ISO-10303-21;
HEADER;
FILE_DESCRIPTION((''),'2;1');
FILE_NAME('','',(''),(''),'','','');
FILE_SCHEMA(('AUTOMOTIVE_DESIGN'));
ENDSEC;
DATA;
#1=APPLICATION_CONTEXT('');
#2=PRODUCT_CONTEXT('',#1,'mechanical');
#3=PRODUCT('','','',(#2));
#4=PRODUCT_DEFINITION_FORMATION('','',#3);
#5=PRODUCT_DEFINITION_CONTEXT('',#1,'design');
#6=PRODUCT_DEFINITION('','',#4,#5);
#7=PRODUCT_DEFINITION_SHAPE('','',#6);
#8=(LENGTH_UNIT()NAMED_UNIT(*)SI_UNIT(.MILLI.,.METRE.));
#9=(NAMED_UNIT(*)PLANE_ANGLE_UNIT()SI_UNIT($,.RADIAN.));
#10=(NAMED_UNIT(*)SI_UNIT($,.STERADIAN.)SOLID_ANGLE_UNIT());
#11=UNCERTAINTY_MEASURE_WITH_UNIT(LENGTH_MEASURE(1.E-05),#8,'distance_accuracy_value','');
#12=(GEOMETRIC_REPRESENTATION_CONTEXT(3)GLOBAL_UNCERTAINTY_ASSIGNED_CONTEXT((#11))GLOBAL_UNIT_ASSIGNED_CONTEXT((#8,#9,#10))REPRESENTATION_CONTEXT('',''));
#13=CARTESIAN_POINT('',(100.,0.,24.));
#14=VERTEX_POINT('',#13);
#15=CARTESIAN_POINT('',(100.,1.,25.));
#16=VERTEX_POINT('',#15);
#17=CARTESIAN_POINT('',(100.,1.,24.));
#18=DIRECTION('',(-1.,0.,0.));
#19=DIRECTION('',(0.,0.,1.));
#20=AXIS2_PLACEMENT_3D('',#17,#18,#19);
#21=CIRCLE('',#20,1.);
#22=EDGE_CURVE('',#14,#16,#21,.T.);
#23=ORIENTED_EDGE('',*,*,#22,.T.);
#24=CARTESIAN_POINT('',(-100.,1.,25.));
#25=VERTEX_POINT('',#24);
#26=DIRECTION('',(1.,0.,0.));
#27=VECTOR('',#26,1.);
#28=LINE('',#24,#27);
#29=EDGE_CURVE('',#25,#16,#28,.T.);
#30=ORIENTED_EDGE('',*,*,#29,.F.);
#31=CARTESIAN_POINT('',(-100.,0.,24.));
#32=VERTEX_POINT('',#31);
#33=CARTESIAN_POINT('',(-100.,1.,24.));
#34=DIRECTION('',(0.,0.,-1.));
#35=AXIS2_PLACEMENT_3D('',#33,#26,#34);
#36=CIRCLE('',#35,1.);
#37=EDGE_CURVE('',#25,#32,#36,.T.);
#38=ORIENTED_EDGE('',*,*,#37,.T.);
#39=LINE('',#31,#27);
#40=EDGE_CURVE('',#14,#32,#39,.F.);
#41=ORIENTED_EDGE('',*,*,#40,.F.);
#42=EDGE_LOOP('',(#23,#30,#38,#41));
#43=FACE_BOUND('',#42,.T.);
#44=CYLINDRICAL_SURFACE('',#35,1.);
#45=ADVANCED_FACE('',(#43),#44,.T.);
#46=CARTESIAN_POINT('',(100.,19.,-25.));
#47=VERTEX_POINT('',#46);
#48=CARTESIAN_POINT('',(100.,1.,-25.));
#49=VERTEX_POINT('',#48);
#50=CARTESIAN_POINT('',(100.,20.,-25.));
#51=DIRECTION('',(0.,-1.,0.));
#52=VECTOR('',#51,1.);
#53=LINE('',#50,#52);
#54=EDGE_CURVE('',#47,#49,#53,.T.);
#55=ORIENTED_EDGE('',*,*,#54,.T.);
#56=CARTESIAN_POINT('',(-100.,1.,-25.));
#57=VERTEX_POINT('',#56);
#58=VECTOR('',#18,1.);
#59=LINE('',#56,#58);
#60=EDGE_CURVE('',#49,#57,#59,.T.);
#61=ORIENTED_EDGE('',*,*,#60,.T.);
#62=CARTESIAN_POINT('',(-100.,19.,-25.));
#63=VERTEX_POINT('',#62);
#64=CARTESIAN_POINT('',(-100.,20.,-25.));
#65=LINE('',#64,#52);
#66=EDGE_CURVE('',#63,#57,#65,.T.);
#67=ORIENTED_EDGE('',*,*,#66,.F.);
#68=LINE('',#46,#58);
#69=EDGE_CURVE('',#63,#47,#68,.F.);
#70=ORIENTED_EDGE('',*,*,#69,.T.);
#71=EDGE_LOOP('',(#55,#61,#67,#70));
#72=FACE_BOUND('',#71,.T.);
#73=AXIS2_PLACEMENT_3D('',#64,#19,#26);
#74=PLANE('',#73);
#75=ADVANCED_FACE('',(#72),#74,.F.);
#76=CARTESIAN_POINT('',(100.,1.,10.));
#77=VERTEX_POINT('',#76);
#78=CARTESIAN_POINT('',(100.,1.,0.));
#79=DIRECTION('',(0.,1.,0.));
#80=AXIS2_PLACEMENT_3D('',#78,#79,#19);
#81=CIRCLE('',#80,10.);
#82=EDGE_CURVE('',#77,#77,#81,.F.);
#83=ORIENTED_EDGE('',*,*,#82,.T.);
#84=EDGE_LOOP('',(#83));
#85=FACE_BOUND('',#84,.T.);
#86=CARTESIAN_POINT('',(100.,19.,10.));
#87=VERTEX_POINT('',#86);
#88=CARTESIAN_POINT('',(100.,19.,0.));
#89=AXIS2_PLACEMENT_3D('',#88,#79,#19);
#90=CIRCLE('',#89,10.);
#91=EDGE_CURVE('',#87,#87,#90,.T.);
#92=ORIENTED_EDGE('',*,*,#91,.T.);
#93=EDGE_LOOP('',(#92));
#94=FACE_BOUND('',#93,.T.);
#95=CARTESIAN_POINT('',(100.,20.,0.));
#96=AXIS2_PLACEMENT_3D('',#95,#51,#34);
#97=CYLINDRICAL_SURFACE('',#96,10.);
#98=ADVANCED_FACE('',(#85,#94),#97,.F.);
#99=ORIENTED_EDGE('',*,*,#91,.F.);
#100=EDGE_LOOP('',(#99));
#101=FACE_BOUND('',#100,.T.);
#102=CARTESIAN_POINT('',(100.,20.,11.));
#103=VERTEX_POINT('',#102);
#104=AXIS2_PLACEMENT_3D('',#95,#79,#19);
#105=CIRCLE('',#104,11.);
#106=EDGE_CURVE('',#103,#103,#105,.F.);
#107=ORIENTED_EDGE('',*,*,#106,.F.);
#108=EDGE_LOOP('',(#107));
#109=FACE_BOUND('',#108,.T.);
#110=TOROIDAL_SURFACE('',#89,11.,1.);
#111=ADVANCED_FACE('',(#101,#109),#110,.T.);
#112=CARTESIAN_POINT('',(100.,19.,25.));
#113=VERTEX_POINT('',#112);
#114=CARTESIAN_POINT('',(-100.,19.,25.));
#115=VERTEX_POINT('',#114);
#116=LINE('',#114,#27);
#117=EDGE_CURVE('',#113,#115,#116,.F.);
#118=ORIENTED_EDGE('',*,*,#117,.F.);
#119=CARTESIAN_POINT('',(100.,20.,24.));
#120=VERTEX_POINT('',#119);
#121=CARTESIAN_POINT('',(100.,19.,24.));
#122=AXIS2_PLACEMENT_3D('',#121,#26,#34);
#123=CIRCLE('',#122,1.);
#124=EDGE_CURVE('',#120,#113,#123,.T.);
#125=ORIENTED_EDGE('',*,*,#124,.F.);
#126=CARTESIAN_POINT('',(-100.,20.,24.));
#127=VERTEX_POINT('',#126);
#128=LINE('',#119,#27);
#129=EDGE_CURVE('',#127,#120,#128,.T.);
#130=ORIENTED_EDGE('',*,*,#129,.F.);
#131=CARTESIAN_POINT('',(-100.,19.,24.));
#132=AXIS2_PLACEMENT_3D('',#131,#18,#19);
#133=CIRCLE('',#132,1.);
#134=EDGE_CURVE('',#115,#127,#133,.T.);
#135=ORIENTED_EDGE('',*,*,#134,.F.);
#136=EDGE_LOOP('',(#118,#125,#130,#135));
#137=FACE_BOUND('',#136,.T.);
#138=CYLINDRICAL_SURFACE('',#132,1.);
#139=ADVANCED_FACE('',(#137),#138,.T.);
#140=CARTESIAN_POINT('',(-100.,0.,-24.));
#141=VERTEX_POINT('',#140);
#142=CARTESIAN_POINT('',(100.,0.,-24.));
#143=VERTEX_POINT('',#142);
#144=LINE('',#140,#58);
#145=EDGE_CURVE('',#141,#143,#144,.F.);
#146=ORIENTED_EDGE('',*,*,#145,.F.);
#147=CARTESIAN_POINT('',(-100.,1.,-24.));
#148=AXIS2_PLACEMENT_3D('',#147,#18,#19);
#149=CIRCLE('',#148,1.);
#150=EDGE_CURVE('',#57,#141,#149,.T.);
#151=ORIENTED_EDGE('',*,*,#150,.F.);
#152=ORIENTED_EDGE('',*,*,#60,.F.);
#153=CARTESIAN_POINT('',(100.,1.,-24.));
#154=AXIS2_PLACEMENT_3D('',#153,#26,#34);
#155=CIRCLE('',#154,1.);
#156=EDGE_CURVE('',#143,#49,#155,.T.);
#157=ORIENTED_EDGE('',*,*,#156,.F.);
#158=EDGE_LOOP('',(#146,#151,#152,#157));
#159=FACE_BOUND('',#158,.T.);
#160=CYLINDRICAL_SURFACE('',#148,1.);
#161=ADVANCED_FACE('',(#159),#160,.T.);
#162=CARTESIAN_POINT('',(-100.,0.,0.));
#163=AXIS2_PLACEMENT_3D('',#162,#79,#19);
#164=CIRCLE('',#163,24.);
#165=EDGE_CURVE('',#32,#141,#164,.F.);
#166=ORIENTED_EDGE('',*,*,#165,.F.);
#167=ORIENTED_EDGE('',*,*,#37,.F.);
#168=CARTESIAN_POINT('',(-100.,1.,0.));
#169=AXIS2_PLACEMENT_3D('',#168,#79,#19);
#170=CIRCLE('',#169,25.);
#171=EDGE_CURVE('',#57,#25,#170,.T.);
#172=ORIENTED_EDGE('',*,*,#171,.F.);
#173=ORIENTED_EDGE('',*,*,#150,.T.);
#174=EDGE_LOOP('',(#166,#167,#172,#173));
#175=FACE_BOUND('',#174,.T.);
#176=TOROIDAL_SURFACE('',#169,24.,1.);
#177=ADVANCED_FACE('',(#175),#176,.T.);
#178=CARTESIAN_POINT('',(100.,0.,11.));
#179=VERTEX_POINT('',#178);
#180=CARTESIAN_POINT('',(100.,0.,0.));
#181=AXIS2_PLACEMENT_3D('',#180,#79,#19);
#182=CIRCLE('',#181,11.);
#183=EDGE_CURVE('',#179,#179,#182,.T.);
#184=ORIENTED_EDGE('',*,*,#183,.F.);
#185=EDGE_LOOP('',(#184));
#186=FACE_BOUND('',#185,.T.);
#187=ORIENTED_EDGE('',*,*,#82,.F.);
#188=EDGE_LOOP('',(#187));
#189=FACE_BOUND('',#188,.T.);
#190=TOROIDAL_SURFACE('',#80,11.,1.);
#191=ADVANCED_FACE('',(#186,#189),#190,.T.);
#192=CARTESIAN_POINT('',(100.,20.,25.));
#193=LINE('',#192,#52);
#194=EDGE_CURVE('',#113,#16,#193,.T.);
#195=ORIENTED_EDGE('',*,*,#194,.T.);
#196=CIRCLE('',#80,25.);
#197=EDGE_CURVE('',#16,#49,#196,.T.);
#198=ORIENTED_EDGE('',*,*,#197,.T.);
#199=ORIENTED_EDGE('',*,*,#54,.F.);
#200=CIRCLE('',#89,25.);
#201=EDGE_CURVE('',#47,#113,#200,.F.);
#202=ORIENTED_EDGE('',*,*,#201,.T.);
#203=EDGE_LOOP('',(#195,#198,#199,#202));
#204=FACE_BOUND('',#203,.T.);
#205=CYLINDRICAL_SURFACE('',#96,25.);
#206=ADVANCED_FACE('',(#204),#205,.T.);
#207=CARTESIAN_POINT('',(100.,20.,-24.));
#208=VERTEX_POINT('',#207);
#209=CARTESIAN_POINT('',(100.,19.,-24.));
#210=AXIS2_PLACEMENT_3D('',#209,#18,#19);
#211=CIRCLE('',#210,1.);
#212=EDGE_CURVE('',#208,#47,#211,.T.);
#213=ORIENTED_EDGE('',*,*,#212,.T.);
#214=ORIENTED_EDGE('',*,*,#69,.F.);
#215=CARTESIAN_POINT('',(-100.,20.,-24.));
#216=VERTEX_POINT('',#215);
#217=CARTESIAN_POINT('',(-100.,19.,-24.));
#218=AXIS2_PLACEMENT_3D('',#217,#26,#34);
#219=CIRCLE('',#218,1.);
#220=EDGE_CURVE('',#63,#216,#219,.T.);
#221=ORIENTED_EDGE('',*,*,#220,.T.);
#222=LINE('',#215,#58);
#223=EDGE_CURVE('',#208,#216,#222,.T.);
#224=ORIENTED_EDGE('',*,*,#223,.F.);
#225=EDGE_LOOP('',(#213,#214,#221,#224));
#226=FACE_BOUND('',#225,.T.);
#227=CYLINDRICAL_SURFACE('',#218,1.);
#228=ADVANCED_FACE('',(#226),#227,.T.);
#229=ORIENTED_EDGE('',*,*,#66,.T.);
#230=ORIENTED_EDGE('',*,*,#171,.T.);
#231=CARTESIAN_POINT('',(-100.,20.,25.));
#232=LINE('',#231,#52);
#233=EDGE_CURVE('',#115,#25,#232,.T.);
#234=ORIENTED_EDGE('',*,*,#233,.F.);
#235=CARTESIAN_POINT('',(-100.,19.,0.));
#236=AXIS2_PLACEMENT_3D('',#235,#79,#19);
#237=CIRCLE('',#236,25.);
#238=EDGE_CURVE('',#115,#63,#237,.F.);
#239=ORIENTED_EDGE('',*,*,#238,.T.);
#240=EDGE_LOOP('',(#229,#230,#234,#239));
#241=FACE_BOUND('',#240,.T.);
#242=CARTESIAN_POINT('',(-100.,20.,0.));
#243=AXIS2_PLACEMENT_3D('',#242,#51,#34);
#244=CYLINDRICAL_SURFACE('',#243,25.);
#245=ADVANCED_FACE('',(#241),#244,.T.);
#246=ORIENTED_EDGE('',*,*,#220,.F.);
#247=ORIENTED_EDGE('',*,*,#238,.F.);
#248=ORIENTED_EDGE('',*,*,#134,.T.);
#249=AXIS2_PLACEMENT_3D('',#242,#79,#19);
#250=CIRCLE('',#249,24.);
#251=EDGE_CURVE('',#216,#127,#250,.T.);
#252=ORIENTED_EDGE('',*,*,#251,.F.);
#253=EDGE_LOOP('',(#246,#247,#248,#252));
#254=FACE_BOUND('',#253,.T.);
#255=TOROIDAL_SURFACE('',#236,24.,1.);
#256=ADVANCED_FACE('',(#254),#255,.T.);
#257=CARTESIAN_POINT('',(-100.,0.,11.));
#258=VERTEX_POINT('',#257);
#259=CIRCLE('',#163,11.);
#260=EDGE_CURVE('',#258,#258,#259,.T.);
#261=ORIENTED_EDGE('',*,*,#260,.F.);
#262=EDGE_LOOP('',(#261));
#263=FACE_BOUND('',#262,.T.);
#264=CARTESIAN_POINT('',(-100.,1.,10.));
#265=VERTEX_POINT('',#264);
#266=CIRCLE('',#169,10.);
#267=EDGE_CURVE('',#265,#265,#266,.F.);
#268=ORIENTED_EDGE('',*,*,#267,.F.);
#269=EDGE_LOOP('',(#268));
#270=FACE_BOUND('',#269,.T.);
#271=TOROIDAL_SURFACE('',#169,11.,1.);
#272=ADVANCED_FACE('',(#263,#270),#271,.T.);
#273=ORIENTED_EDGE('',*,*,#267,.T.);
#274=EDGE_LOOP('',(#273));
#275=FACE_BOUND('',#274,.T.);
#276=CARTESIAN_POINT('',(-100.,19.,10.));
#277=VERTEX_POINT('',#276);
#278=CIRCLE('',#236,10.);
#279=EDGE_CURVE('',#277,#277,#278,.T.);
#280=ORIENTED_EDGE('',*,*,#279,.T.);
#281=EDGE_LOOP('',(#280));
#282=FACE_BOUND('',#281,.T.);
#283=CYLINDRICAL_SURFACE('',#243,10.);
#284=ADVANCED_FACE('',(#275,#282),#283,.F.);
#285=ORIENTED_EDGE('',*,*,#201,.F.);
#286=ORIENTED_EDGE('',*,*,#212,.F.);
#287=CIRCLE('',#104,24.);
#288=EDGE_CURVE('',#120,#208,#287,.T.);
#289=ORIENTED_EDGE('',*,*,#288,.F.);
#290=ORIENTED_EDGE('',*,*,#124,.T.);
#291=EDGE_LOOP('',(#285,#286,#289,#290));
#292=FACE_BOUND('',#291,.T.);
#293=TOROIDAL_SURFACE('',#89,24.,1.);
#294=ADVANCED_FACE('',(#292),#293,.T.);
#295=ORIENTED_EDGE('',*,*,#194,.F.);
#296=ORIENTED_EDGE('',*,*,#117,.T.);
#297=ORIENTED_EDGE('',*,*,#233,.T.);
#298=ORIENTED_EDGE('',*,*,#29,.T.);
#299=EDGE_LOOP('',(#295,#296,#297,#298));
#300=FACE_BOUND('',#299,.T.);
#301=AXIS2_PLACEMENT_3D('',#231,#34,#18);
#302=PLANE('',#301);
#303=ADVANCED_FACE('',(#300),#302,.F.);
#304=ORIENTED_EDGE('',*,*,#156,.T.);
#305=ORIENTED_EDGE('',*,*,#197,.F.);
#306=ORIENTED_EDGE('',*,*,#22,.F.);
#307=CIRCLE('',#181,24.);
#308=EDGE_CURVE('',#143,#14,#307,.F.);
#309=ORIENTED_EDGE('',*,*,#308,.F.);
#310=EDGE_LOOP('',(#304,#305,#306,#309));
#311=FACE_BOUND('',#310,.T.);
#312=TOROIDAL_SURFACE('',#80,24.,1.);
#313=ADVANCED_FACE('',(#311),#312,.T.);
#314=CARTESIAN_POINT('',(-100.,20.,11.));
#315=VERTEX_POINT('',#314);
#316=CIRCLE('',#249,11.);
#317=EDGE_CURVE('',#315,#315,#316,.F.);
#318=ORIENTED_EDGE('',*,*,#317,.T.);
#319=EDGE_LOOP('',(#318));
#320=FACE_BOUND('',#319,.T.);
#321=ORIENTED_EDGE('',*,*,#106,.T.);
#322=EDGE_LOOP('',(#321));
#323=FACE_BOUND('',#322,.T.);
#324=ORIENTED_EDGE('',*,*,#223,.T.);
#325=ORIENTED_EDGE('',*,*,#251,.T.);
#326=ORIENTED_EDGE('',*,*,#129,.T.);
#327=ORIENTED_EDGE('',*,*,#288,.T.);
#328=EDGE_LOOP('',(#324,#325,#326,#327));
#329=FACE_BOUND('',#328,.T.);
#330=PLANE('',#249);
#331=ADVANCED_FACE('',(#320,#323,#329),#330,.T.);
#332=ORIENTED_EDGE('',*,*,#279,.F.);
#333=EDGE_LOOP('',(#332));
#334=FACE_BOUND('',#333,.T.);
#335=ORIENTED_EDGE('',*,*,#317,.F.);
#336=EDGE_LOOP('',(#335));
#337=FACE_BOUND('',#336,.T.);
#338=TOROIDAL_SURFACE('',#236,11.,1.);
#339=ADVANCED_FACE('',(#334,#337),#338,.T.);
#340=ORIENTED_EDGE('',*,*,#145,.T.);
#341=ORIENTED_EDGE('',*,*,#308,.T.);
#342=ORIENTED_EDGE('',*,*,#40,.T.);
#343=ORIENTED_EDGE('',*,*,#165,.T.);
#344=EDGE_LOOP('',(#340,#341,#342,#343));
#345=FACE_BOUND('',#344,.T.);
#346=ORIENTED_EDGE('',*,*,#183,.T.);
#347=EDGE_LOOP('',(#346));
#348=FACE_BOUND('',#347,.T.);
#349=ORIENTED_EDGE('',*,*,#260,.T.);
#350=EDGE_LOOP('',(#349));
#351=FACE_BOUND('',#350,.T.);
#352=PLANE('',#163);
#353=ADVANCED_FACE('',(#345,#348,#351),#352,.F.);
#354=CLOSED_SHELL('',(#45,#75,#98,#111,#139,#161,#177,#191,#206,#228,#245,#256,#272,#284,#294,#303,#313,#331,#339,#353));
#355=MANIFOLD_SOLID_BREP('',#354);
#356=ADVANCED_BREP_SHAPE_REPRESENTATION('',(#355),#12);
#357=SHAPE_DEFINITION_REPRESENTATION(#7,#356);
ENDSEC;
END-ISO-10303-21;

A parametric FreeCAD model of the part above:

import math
import FreeCAD as App
import Part
import Sketcher
Q = App.Units.Quantity


def edges_at(feature, points):
    """Names of the edges that pass closest to the given points."""
    edges = feature.Shape.Edges
    near = lambda p: min(range(len(edges)), key=lambda i: edges[i].distToShape(Part.Vertex(*p))[0])
    return sorted({f"Edge{near(p) + 1}" for p in points})

doc = App.newDocument("Part")
body = doc.addObject("PartDesign::Body", "Body")

# Sketch on XZ plane
sketch1 = doc.addObject("Sketcher::SketchObject", "Sketch")
body.addObject(sketch1)
sketch1.AttachmentSupport = (doc.XZ_Plane, [""])
sketch1.MapMode = "FlatFace"
sketch1.addGeometry([
    Part.LineSegment(App.Vector(100, -25, 0), App.Vector(-100, -25, 0)),  # 0
    Part.ArcOfCircle(Part.Circle(App.Vector(-100, 0, 0), App.Vector(0, 0, 1), 25), math.radians(90), math.radians(270)),  # 1
    Part.LineSegment(App.Vector(-100, 25, 0), App.Vector(100, 25, 0)),  # 2
    Part.ArcOfCircle(Part.Circle(App.Vector(100, 0, 0), App.Vector(0, 0, 1), 25), math.radians(-90), math.radians(90)),  # 3
    Part.Circle(App.Vector(100, 0, 0), App.Vector(0, 0, 1), 10),  # 4
    Part.Circle(App.Vector(-100, 0, 0), App.Vector(0, 0, 1), 10),  # 5
], False)
sketch1.addConstraint([
    Sketcher.Constraint("Tangent", 0, 2, 1, 2),
    Sketcher.Constraint("Tangent", 1, 1, 2, 1),
    Sketcher.Constraint("Tangent", 2, 2, 3, 2),
    Sketcher.Constraint("Tangent", 3, 1, 0, 1),
    Sketcher.Constraint("Horizontal", 0),
    Sketcher.Constraint("Horizontal", 2),
    Sketcher.Constraint("Coincident", 4, 3, 3, 3),
    Sketcher.Constraint("Coincident", 5, 3, 1, 3),
    Sketcher.Constraint("Equal", 4, 5),
    Sketcher.Constraint("Symmetric", 1, 3, 3, 3, -1, 1),
    Sketcher.Constraint("Diameter", 4, Q("20 mm")),
    Sketcher.Constraint("Radius", 1, Q("25 mm")),
    Sketcher.Constraint("DistanceX", 0, 2, 0, 1, Q("200 mm")),
])
pad1 = doc.addObject("PartDesign::Pad", "Pad")
body.addObject(pad1)
pad1.Profile = sketch1
pad1.Length = 20
pad1.Reversed = True
doc.recompute()

fillet = doc.addObject("PartDesign::Fillet", "Fillet")
body.addObject(fillet)
fillet.Base = (pad1, edges_at(pad1, [
    (-110, 0, 0),
    (-110, 20, 0),
    (125, 20, 0),
    (90, 0, 0),
    (90, 20, 0),
    (0, 20, -25),
    (-125, 20, 0),
    (0, 0, -25),
    (125, 0, 0),
    (0, 0, 25),
    (-125, 0, 0),
    (0, 20, 25),
]))
fillet.Radius = 1

doc.recompute()
